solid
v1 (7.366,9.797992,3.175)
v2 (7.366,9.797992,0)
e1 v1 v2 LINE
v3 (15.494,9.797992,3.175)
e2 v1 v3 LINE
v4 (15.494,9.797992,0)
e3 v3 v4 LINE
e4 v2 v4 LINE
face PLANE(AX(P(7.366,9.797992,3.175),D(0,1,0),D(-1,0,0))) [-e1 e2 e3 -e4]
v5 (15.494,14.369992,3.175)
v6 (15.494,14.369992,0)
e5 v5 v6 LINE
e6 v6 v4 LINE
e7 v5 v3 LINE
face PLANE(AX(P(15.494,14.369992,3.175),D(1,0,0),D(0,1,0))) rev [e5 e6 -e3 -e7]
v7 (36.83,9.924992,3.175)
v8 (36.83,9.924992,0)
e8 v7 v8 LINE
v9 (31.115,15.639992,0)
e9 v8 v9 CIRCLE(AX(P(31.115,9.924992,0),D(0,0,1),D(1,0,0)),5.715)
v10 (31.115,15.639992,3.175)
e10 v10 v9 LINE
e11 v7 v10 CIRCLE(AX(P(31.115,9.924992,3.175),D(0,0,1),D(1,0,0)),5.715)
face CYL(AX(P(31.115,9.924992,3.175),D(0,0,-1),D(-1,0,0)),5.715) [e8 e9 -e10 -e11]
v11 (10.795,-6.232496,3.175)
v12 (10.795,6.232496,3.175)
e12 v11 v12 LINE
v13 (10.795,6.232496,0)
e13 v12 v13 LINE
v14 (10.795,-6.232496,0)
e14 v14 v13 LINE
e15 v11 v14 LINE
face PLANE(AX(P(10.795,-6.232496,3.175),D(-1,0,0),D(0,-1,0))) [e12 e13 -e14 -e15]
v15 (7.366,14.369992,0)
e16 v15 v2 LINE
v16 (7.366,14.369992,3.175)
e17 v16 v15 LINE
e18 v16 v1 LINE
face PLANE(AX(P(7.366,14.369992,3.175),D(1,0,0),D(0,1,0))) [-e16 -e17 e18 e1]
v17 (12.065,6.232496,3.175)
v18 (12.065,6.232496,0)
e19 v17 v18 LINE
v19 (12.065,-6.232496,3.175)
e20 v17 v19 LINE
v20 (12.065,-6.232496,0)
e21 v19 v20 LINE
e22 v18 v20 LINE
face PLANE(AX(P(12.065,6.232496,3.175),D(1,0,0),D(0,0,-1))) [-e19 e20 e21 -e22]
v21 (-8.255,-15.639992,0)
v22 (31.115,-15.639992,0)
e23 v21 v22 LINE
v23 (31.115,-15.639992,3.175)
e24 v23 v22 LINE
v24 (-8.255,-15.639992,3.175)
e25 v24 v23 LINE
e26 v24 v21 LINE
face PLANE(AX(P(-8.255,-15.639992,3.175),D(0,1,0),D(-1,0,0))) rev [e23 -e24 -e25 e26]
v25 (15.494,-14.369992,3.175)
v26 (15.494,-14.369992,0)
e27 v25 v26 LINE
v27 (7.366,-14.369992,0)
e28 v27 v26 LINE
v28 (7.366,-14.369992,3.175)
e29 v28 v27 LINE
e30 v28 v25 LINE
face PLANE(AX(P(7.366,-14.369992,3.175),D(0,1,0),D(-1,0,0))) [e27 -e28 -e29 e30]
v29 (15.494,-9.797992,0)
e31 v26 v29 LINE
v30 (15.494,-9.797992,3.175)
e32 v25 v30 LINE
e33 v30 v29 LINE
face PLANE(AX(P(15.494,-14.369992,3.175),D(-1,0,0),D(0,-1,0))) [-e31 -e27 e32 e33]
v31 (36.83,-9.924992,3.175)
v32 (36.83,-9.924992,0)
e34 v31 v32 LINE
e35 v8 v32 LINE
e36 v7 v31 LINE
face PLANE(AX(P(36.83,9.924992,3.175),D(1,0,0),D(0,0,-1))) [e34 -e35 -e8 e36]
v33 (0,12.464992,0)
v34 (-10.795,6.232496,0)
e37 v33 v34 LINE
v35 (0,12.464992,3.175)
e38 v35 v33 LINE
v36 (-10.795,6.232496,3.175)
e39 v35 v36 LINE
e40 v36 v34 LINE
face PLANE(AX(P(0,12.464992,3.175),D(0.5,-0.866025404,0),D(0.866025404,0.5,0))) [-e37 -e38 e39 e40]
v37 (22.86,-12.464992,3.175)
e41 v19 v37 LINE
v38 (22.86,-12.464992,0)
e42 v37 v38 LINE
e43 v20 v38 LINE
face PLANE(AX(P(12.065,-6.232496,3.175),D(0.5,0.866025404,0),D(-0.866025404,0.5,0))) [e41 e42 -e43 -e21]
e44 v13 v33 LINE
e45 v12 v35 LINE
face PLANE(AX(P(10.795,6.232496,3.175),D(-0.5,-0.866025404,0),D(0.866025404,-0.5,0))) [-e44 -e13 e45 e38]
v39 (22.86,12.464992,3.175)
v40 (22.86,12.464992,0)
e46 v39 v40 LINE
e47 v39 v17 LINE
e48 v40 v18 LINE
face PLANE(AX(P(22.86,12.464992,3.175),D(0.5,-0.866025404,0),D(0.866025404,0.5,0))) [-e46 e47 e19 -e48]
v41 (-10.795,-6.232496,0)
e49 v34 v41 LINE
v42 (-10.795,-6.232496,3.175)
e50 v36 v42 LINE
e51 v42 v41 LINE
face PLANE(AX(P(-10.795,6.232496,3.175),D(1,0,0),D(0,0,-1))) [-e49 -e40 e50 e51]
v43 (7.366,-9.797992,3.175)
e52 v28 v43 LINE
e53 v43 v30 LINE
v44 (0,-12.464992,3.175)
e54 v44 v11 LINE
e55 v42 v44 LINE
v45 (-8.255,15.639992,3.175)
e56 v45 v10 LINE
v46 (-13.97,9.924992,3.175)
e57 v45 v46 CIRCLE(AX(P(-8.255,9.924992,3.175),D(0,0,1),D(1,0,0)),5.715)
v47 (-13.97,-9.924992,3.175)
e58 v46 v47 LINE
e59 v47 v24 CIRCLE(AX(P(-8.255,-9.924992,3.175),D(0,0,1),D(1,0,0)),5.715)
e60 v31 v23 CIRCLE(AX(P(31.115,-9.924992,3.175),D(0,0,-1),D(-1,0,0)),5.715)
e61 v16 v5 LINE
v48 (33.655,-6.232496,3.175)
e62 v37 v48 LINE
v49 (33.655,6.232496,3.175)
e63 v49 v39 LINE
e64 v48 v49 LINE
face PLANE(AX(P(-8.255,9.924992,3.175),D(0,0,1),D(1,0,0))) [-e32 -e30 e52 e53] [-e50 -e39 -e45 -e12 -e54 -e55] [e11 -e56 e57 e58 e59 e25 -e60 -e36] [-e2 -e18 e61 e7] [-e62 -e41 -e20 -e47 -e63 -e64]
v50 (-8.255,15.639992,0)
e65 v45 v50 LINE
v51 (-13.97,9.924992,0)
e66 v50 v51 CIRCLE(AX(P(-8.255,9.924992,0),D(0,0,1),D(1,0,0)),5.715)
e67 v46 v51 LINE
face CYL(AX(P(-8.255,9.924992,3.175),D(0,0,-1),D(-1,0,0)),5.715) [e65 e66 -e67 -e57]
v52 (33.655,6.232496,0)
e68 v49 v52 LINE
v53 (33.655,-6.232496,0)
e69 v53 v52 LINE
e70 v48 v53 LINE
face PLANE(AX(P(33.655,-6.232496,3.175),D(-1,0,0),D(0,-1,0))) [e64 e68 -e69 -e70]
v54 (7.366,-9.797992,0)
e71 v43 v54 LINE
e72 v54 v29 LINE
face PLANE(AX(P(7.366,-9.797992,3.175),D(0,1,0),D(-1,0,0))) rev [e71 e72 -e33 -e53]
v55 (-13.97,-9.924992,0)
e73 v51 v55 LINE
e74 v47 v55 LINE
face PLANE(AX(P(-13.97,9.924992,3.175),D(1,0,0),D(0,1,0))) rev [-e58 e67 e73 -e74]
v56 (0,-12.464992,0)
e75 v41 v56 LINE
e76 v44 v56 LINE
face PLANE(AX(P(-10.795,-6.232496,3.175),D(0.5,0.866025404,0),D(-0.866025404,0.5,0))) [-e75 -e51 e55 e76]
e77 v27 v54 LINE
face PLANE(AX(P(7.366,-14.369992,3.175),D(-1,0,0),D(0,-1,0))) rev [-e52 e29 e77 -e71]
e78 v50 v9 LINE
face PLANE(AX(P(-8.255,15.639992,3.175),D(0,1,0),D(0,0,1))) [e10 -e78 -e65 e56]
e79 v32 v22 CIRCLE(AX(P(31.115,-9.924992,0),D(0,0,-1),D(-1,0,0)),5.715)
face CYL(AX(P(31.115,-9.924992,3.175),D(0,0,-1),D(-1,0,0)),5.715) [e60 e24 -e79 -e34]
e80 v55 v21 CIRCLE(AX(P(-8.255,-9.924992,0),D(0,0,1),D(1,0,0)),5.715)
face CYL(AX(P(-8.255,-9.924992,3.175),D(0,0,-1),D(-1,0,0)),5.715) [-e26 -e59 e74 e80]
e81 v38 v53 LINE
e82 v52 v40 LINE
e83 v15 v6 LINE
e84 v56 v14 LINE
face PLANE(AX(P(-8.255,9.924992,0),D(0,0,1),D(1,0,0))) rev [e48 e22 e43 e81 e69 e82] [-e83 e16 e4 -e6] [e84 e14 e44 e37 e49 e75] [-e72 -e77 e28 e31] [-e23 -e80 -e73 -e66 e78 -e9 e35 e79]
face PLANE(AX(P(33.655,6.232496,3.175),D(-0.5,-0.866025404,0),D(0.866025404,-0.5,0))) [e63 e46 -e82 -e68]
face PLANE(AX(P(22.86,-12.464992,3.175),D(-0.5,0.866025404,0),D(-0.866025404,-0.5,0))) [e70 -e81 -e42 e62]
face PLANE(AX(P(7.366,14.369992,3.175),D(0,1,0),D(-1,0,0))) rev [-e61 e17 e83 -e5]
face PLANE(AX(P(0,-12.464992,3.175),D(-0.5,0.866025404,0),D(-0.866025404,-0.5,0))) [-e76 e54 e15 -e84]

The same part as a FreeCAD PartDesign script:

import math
import FreeCAD as App
import Part
import Sketcher
Q = App.Units.Quantity

doc = App.newDocument("Part")
params = doc.addObject("Spreadsheet::Sheet", "Params")
for row, (alias, value) in enumerate([
    ("sketch1_radius", "0.225 in"),
    ("sketch1_width", "1.55 in"),
    ("sketch1_width2", "0.32 in"),
    ("sketch1_height", "0.18 in"),
    ("pad1_length", "0.125 in"),
], start=1):
    params.set(f"A{row}", alias)
    params.set(f"B{row}", "=" + value)
    params.setAlias(f"B{row}", alias)

body = doc.addObject("PartDesign::Body", "Body")

# Sketch on XY plane
sketch1 = doc.addObject("Sketcher::SketchObject", "Sketch")
body.addObject(sketch1)
sketch1.AttachmentSupport = (doc.XY_Plane, [""])
sketch1.MapMode = "FlatFace"
sketch1.addGeometry([
    Part.LineSegment(App.Vector(31.1, 15.6, 0), App.Vector(-8.3, 15.6, 0)),  # 0
    Part.ArcOfCircle(Part.Circle(App.Vector(-8.3, 9.9, 0), App.Vector(0, 0, 1), 5.7), math.radians(90), math.radians(180)),  # 1
    Part.LineSegment(App.Vector(-14, 9.9, 0), App.Vector(-14, -9.9, 0)),  # 2
    Part.ArcOfCircle(Part.Circle(App.Vector(-8.3, -9.9, 0), App.Vector(0, 0, 1), 5.7), math.radians(-180), math.radians(-90)),  # 3
    Part.LineSegment(App.Vector(-8.3, -15.6, 0), App.Vector(31.1, -15.6, 0)),  # 4
    Part.ArcOfCircle(Part.Circle(App.Vector(31.1, -9.9, 0), App.Vector(0, 0, 1), 5.7), math.radians(-90), math.radians(0)),  # 5
    Part.LineSegment(App.Vector(36.8, -9.9, 0), App.Vector(36.8, 9.9, 0)),  # 6
    Part.ArcOfCircle(Part.Circle(App.Vector(31.1, 9.9, 0), App.Vector(0, 0, 1), 5.7), math.radians(0), math.radians(90)),  # 7
    Part.LineSegment(App.Vector(7.4, -14.4, 0), App.Vector(7.4, -9.8, 0)),  # 8
    Part.LineSegment(App.Vector(7.4, -9.8, 0), App.Vector(15.5, -9.8, 0)),  # 9
    Part.LineSegment(App.Vector(15.5, -9.8, 0), App.Vector(15.5, -14.4, 0)),  # 10
    Part.LineSegment(App.Vector(15.5, -14.4, 0), App.Vector(7.4, -14.4, 0)),  # 11
    Part.LineSegment(App.Vector(12.1, -6.2, 0), App.Vector(12.1, 6.2, 0)),  # 12
    Part.LineSegment(App.Vector(12.1, 6.2, 0), App.Vector(22.9, 12.5, 0)),  # 13
    Part.LineSegment(App.Vector(22.9, 12.5, 0), App.Vector(33.7, 6.2, 0)),  # 14
    Part.LineSegment(App.Vector(33.7, 6.2, 0), App.Vector(33.7, -6.2, 0)),  # 15
    Part.LineSegment(App.Vector(33.7, -6.2, 0), App.Vector(22.9, -12.5, 0)),  # 16
    Part.LineSegment(App.Vector(22.9, -12.5, 0), App.Vector(12.1, -6.2, 0)),  # 17
    Part.LineSegment(App.Vector(-10.8, -6.2, 0), App.Vector(-10.8, 6.2, 0)),  # 18
    Part.LineSegment(App.Vector(-10.8, 6.2, 0), App.Vector(0, 12.5, 0)),  # 19
    Part.LineSegment(App.Vector(0, 12.5, 0), App.Vector(10.8, 6.2, 0)),  # 20
    Part.LineSegment(App.Vector(10.8, 6.2, 0), App.Vector(10.8, -6.2, 0)),  # 21
    Part.LineSegment(App.Vector(10.8, -6.2, 0), App.Vector(0, -12.5, 0)),  # 22
    Part.LineSegment(App.Vector(0, -12.5, 0), App.Vector(-10.8, -6.2, 0)),  # 23
    Part.LineSegment(App.Vector(7.4, 9.8, 0), App.Vector(7.4, 14.4, 0)),  # 24
    Part.LineSegment(App.Vector(7.4, 14.4, 0), App.Vector(15.5, 14.4, 0)),  # 25
    Part.LineSegment(App.Vector(15.5, 14.4, 0), App.Vector(15.5, 9.8, 0)),  # 26
    Part.LineSegment(App.Vector(15.5, 9.8, 0), App.Vector(7.4, 9.8, 0)),  # 27
], False)
sketch1.addConstraint([
    Sketcher.Constraint("Tangent", 0, 2, 1, 1),
    Sketcher.Constraint("Tangent", 1, 2, 2, 1),
    Sketcher.Constraint("Tangent", 2, 2, 3, 1),
    Sketcher.Constraint("Tangent", 3, 2, 4, 1),
    Sketcher.Constraint("Tangent", 4, 2, 5, 1),
    Sketcher.Constraint("Tangent", 5, 2, 6, 1),
    Sketcher.Constraint("Tangent", 6, 2, 7, 1),
    Sketcher.Constraint("Tangent", 7, 2, 0, 1),
    Sketcher.Constraint("Coincident", 8, 2, 9, 1),
    Sketcher.Constraint("Coincident", 9, 2, 10, 1),
    Sketcher.Constraint("Coincident", 10, 2, 11, 1),
    Sketcher.Constraint("Coincident", 11, 2, 8, 1),
    Sketcher.Constraint("Coincident", 12, 2, 13, 1),
    Sketcher.Constraint("Coincident", 13, 2, 14, 1),
    Sketcher.Constraint("Coincident", 14, 2, 15, 1),
    Sketcher.Constraint("Coincident", 15, 2, 16, 1),
    Sketcher.Constraint("Coincident", 16, 2, 17, 1),
    Sketcher.Constraint("Coincident", 17, 2, 12, 1),
    Sketcher.Constraint("Coincident", 18, 2, 19, 1),
    Sketcher.Constraint("Coincident", 19, 2, 20, 1),
    Sketcher.Constraint("Coincident", 20, 2, 21, 1),
    Sketcher.Constraint("Coincident", 21, 2, 22, 1),
    Sketcher.Constraint("Coincident", 22, 2, 23, 1),
    Sketcher.Constraint("Coincident", 23, 2, 18, 1),
    Sketcher.Constraint("Coincident", 24, 2, 25, 1),
    Sketcher.Constraint("Coincident", 25, 2, 26, 1),
    Sketcher.Constraint("Coincident", 26, 2, 27, 1),
    Sketcher.Constraint("Coincident", 27, 2, 24, 1),
    Sketcher.Constraint("Horizontal", 0),
    Sketcher.Constraint("Vertical", 2),
    Sketcher.Constraint("Horizontal", 4),
    Sketcher.Constraint("Vertical", 6),
    Sketcher.Constraint("Vertical", 8),
    Sketcher.Constraint("Horizontal", 9),
    Sketcher.Constraint("Vertical", 10),
    Sketcher.Constraint("Horizontal", 11),
    Sketcher.Constraint("Vertical", 12),
    Sketcher.Constraint("Vertical", 15),
    Sketcher.Constraint("Vertical", 18),
    Sketcher.Constraint("Vertical", 21),
    Sketcher.Constraint("Vertical", 24),
    Sketcher.Constraint("Horizontal", 25),
    Sketcher.Constraint("Vertical", 26),
    Sketcher.Constraint("Horizontal", 27),
    Sketcher.Constraint("Equal", 1, 3),
    Sketcher.Constraint("Equal", 3, 5),
    Sketcher.Constraint("Equal", 5, 7),
    Sketcher.Constraint("Symmetric", 18, 2, 21, 2, -1, 1),
    Sketcher.Constraint("Symmetric", 19, 2, 22, 2, -1, 1),
    Sketcher.Constraint("Symmetric", 13, 2, 16, 2, -1),
    Sketcher.Constraint("Symmetric", 11, 2, 24, 2, -1),
    Sketcher.Constraint("Symmetric", 9, 2, 26, 2, -1),
    Sketcher.Constraint("PointOnObject", 19, 2, -2),
    Sketcher.Constraint("Parallel", 13, 16),
    Sketcher.Constraint("Parallel", 14, 17),
    Sketcher.Constraint("Parallel", 16, 19),
    Sketcher.Constraint("Parallel", 17, 20),
    Sketcher.Constraint("Parallel", 20, 23),
    Sketcher.Constraint("Horizontal", 12, 2, 14, 2),
    Sketcher.Constraint("Horizontal", 15, 2, 17, 2),
    Sketcher.Constraint("Horizontal", 14, 2, 18, 2),
    Sketcher.Constraint("Horizontal", 13, 2, 19, 2),
    Sketcher.Constraint("Angle", 13, Q("30 deg")),
    Sketcher.Constraint("Radius", 1, Q("0.225 in")),
    Sketcher.Constraint("DistanceX", 0, 2, 0, 1, Q("1.55 in")),
    Sketcher.Constraint("DistanceX", 9, 1, 9, 2, Q("0.32 in")),
    Sketcher.Constraint("DistanceY", 8, 1, 8, 2, Q("0.18 in")),
    Sketcher.Constraint("DistanceX", -1, 1, 13, 2, Q("0.9 in")),
    Sketcher.Constraint("DistanceX", 1, 3, 12, 2, Q("0.8 in")),
    Sketcher.Constraint("DistanceY", 7, 3, 13, 2, Q("0.1 in")),
    Sketcher.Constraint("DistanceX", 7, 3, 14, 2, Q("0.1 in")),
    Sketcher.Constraint("DistanceY", 16, 2, 5, 3, Q("0.1 in")),
    Sketcher.Constraint("DistanceX", -1, 1, 8, 2, Q("0.29 in")),
    Sketcher.Constraint("DistanceY", 3, 2, 8, 2, Q("0.23 in")),
    Sketcher.Constraint("DistanceY", 2, 2, 2, 1, 19.849985),
])
sketch1.setExpression("Constraints[63]", "Params.sketch1_radius")
sketch1.setExpression("Constraints[64]", "Params.sketch1_width")
sketch1.setExpression("Constraints[65]", "Params.sketch1_width2")
sketch1.setExpression("Constraints[66]", "Params.sketch1_height")
pad1 = doc.addObject("PartDesign::Pad", "Pad")
body.addObject(pad1)
pad1.Profile = sketch1
pad1.setExpression("Length", "Params.pad1_length")

doc.recompute()
